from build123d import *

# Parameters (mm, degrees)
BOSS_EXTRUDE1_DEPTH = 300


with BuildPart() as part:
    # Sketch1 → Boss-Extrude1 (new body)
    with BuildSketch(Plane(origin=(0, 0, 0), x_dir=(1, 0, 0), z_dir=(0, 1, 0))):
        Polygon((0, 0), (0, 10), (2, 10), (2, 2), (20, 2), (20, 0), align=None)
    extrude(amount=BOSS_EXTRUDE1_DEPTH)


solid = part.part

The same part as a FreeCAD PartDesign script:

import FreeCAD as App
import Part
import Sketcher

doc = App.newDocument("Part")
body = doc.addObject("PartDesign::Body", "Body")

sketch1 = body.newObject("Sketcher::SketchObject", "Sketch")
sketch1.AttachmentSupport = (doc.getObject("XZ_Plane"), [""])
sketch1.MapMode = "FlatFace"
sketch1.addGeometry([
    Part.LineSegment(App.Vector(0, -10, 0), App.Vector(0, 0, 0)),
    Part.LineSegment(App.Vector(0, 0, 0), App.Vector(20, 0, 0)),
    Part.LineSegment(App.Vector(20, 0, 0), App.Vector(20, -2, 0)),
    Part.LineSegment(App.Vector(20, -2, 0), App.Vector(2, -2, 0)),
    Part.LineSegment(App.Vector(2, -2, 0), App.Vector(2, -10, 0)),
    Part.LineSegment(App.Vector(2, -10, 0), App.Vector(0, -10, 0)),
], False)
sketch1.addConstraint([
    Sketcher.Constraint("Coincident", 0, 2, 1, 1),
    Sketcher.Constraint("Coincident", 1, 2, 2, 1),
    Sketcher.Constraint("Coincident", 2, 2, 3, 1),
    Sketcher.Constraint("Coincident", 3, 2, 4, 1),
    Sketcher.Constraint("Coincident", 4, 2, 5, 1),
    Sketcher.Constraint("Coincident", 5, 2, 0, 1),
    Sketcher.Constraint("Vertical", 0),
    Sketcher.Constraint("Horizontal", 1),
    Sketcher.Constraint("Vertical", 2),
    Sketcher.Constraint("Horizontal", 3),
    Sketcher.Constraint("Vertical", 4),
    Sketcher.Constraint("Horizontal", 5),
    Sketcher.Constraint("Coincident", 0, 2, -1, 1),
    Sketcher.Constraint("Equal", 5, 2),
    Sketcher.Constraint("DistanceX", 1, 1, 1, 2, 20.0),
    Sketcher.Constraint("DistanceX", 3, 2, 3, 1, 18.0),
    Sketcher.Constraint("DistanceY", 0, 1, 0, 2, 10.0),
])
pad1 = body.newObject("PartDesign::Pad", "Pad")
pad1.Profile = sketch1
pad1.Length = 300
pad1.Reversed = True

doc.recompute()
